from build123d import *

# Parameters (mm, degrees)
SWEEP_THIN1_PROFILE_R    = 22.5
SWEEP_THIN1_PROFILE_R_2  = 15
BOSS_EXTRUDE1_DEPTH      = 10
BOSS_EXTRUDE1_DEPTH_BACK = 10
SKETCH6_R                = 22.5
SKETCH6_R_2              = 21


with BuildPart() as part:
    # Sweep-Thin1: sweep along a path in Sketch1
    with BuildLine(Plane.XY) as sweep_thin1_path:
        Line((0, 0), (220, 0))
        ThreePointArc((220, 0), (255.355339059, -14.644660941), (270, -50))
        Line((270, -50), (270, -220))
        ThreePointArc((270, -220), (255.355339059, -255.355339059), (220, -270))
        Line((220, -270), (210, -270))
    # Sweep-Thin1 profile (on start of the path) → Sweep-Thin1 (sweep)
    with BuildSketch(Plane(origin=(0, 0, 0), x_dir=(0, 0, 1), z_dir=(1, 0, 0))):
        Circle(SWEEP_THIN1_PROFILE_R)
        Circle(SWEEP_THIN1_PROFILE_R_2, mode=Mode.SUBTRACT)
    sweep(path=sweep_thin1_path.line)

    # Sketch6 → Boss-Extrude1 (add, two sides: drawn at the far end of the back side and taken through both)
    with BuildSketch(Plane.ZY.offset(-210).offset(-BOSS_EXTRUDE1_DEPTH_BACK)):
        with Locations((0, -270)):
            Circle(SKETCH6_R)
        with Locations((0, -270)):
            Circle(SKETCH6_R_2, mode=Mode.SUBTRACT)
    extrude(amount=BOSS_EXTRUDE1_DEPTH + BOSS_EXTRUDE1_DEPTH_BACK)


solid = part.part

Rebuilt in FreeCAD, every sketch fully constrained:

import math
import FreeCAD as App
import Part
import Sketcher

V = App.Vector

doc = App.newDocument("Part")
body = doc.addObject("PartDesign::Body", "Body")

# Sketch on YZ plane
sketch1 = doc.addObject("Sketcher::SketchObject", "Sketch")
body.addObject(sketch1)
sketch1.AttachmentSupport = (doc.YZ_Plane, [""])
sketch1.MapMode = "FlatFace"
sketch1.addGeometry([
    Part.Circle(V(0, 0, 0), V(0, 0, 1), 22),
    Part.Circle(V(0, 0, 0), V(0, 0, 1), 15),
], False)
sketch1.addConstraint([
    Sketcher.Constraint("Coincident", 0, 3, -1, 1),
    Sketcher.Constraint("Coincident", 1, 3, -1, 1),
    Sketcher.Constraint("Diameter", 0, 45.0),
    Sketcher.Constraint("Diameter", 1, 30.0),
])

# Sketch on XY plane
sketch2 = doc.addObject("Sketcher::SketchObject", "Sketch001")
body.addObject(sketch2)
sketch2.AttachmentSupport = (doc.XY_Plane, [""])
sketch2.MapMode = "FlatFace"
sketch2.addGeometry([
    Part.LineSegment(V(0, 0, 0), V(220, 0, 0)),  # 0
    Part.ArcOfCircle(Part.Circle(V(220, -50, 0), V(0, 0, 1), 50), math.radians(0), math.radians(90)),  # 1
    Part.LineSegment(V(270, -50, 0), V(270, -220, 0)),  # 2
    Part.ArcOfCircle(Part.Circle(V(220, -220, 0), V(0, 0, 1), 50), math.radians(-90), math.radians(0)),  # 3
    Part.LineSegment(V(220, -270, 0), V(210, -270, 0)),  # 4
], False)
sketch2.addConstraint([
    Sketcher.Constraint("Tangent", 0, 2, 1, 2),
    Sketcher.Constraint("Tangent", 1, 1, 2, 1),
    Sketcher.Constraint("Tangent", 2, 2, 3, 2),
    Sketcher.Constraint("Tangent", 3, 1, 4, 1),
    Sketcher.Constraint("Horizontal", 0),
    Sketcher.Constraint("Vertical", 2),
    Sketcher.Constraint("Horizontal", 4),
    Sketcher.Constraint("Coincident", 0, 1, -1, 1),
    Sketcher.Constraint("Equal", 1, 3),
    Sketcher.Constraint("Radius", 1, 50.0),
    Sketcher.Constraint("DistanceX", 0, 1, 0, 2, 220.0),
    Sketcher.Constraint("DistanceX", 4, 2, 4, 1, 10.0),
    Sketcher.Constraint("DistanceY", 2, 2, 2, 1, 170.0),
])
doc.recompute()

additivepipe = doc.addObject("PartDesign::AdditivePipe", "AdditivePipe")
body.addObject(additivepipe)
additivepipe.Profile = sketch1
additivepipe.Spine = (sketch2, ["Edge1", "Edge2", "Edge3", "Edge4", "Edge5"])

# Sketch on YZ plane
sketch3 = doc.addObject("Sketcher::SketchObject", "Sketch002")
body.addObject(sketch3)
sketch3.AttachmentSupport = (doc.YZ_Plane, [""])
sketch3.MapMode = "FlatFace"
sketch3.AttachmentOffset = App.Placement(V(0, 0, 210), App.Rotation())
sketch3.addGeometry([
    Part.Circle(V(-270, 0, 0), V(0, 0, 1), 22),
    Part.Circle(V(-270, 0, 0), V(0, 0, 1), 21),
], False)
sketch3.addConstraint([
    Sketcher.Constraint("Coincident", 1, 3, 0, 3),
    Sketcher.Constraint("PointOnObject", 0, 3, -1),
    Sketcher.Constraint("Diameter", 0, 45.0),
    Sketcher.Constraint("Diameter", 1, 42.0),
    Sketcher.Constraint("DistanceX", 0, 3, -1, 1, 270.0),
])
pad1 = doc.addObject("PartDesign::Pad", "Pad")
body.addObject(pad1)
pad1.Profile = sketch3
pad1.Type = "TwoLengths"
pad1.Length = 10
pad1.Length2 = 10
pad1.Reversed = True

doc.recompute()
